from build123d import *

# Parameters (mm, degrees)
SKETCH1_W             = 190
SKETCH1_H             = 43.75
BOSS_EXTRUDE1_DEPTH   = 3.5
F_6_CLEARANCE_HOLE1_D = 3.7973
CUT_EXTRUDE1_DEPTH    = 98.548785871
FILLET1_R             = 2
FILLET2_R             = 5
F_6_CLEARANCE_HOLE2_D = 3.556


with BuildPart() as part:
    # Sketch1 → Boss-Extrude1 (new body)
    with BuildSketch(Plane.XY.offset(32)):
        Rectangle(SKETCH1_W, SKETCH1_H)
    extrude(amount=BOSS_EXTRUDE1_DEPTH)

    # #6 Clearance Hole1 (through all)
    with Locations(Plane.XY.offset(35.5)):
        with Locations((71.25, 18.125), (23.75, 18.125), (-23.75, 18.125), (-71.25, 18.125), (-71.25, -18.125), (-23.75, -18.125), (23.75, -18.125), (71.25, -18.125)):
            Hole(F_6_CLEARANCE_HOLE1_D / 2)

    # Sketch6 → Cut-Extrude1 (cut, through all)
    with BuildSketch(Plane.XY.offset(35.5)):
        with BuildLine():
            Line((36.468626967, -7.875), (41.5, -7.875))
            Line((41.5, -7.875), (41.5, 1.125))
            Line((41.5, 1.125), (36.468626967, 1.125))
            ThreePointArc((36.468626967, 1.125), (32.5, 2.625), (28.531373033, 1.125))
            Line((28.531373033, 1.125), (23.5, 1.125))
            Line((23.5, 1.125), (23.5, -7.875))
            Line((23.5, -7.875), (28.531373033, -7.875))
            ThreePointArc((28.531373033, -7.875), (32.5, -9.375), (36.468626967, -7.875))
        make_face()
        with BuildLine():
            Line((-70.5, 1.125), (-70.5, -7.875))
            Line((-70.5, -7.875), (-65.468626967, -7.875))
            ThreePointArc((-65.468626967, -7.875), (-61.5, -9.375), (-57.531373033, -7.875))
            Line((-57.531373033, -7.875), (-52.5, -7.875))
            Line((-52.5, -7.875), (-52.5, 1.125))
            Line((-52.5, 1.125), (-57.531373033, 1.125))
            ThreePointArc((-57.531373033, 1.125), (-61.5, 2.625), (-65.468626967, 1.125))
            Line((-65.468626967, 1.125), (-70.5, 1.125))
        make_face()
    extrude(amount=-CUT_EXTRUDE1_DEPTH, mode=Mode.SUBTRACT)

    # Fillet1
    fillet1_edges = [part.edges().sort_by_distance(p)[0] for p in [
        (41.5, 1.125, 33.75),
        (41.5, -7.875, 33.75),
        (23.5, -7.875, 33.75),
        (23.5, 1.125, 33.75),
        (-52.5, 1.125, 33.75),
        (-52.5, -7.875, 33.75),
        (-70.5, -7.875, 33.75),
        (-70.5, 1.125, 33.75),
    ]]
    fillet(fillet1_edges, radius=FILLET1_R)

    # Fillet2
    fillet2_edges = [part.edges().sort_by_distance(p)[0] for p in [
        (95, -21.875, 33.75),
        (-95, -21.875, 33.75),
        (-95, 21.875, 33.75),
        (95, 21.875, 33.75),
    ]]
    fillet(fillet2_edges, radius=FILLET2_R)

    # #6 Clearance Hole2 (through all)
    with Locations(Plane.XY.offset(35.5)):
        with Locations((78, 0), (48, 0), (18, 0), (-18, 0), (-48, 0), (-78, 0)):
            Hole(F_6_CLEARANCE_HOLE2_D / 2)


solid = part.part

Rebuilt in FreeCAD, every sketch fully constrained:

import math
import FreeCAD as App
import Part
import Sketcher
Q = App.Units.Quantity


def edges_at(feature, points):
    """Names of the edges that pass closest to the given points."""
    edges = feature.Shape.Edges
    near = lambda p: min(range(len(edges)), key=lambda i: edges[i].distToShape(Part.Vertex(*p))[0])
    return sorted({f"Edge{near(p) + 1}" for p in points})

doc = App.newDocument("Part")
body = doc.addObject("PartDesign::Body", "Body")

# Sketch on XY plane
sketch1 = doc.addObject("Sketcher::SketchObject", "Sketch")
body.addObject(sketch1)
sketch1.AttachmentSupport = (doc.XY_Plane, [""])
sketch1.MapMode = "FlatFace"
sketch1.AttachmentOffset = App.Placement(App.Vector(0, 0, 32), App.Rotation())
sketch1.addGeometry([
    Part.LineSegment(App.Vector(-95, 22, 0), App.Vector(-95, -22, 0)),
    Part.LineSegment(App.Vector(-95, -22, 0), App.Vector(95, -22, 0)),
    Part.LineSegment(App.Vector(95, -22, 0), App.Vector(95, 22, 0)),
    Part.LineSegment(App.Vector(95, 22, 0), App.Vector(-95, 22, 0)),
], False)
sketch1.addConstraint([
    Sketcher.Constraint("Coincident", 0, 2, 1, 1),
    Sketcher.Constraint("Coincident", 1, 2, 2, 1),
    Sketcher.Constraint("Coincident", 2, 2, 3, 1),
    Sketcher.Constraint("Coincident", 3, 2, 0, 1),
    Sketcher.Constraint("Vertical", 0),
    Sketcher.Constraint("Horizontal", 1),
    Sketcher.Constraint("Vertical", 2),
    Sketcher.Constraint("Horizontal", 3),
    Sketcher.Constraint("Symmetric", 0, 2, 2, 2, -1, 1),
    Sketcher.Constraint("DistanceX", 1, 1, 1, 2, Q("190 mm")),
    Sketcher.Constraint("DistanceY", 0, 2, 0, 1, Q("43.75 mm")),
])
pad1 = doc.addObject("PartDesign::Pad", "Pad")
body.addObject(pad1)
pad1.Profile = sketch1
pad1.Length = 3.5

# Sketch on XY plane
sketch2 = doc.addObject("Sketcher::SketchObject", "Sketch001")
body.addObject(sketch2)
sketch2.AttachmentSupport = (doc.XY_Plane, [""])
sketch2.MapMode = "FlatFace"
sketch2.AttachmentOffset = App.Placement(App.Vector(0, 0, 35.5), App.Rotation())
sketch2.addGeometry([
    Part.Circle(App.Vector(71.2, 18.1, 0), App.Vector(0, 0, 1), 1.9),  # 0
    Part.Circle(App.Vector(23.8, 18.1, 0), App.Vector(0, 0, 1), 1.9),  # 1
    Part.Circle(App.Vector(-23.8, 18.1, 0), App.Vector(0, 0, 1), 1.9),  # 2
    Part.Circle(App.Vector(-71.2, 18.1, 0), App.Vector(0, 0, 1), 1.9),  # 3
    Part.Circle(App.Vector(-71.2, -18.1, 0), App.Vector(0, 0, 1), 1.9),  # 4
    Part.Circle(App.Vector(-23.8, -18.1, 0), App.Vector(0, 0, 1), 1.9),  # 5
    Part.Circle(App.Vector(23.8, -18.1, 0), App.Vector(0, 0, 1), 1.9),  # 6
    Part.Circle(App.Vector(71.2, -18.1, 0), App.Vector(0, 0, 1), 1.9),  # 7
], False)
sketch2.addConstraint([
    Sketcher.Constraint("Equal", 0, 1),
    Sketcher.Constraint("Equal", 1, 2),
    Sketcher.Constraint("Equal", 2, 3),
    Sketcher.Constraint("Equal", 3, 4),
    Sketcher.Constraint("Equal", 4, 5),
    Sketcher.Constraint("Equal", 5, 6),
    Sketcher.Constraint("Equal", 6, 7),
    Sketcher.Constraint("Symmetric", 0, 3, 4, 3, -1, 1),
    Sketcher.Constraint("Symmetric", 1, 3, 5, 3, -1, 1),
    Sketcher.Constraint("Symmetric", 2, 3, 6, 3, -1, 1),
    Sketcher.Constraint("Symmetric", 3, 3, 7, 3, -1, 1),
    Sketcher.Constraint("Symmetric", 1, 3, 2, 3, -2),
    Sketcher.Constraint("Symmetric", 0, 3, 3, 3, -2),
    Sketcher.Constraint("Horizontal", 0, 3, 1, 3),
    Sketcher.Constraint("DistanceX", 2, 3, 0, 3, Q("95 mm")),
    Sketcher.Constraint("Diameter", 0, Q("3.7973 mm")),
    Sketcher.Constraint("DistanceX", 1, 3, 0, 3, Q("47.5 mm")),
    Sketcher.Constraint("DistanceY", 4, 3, 3, 3, Q("36.25 mm")),
])
doc.recompute()
hole = doc.addObject("PartDesign::Hole", "Hole")
body.addObject(hole)
hole.Profile = sketch2
hole.ThreadType = "None"
hole.Diameter = 3.7973
hole.DepthType = "ThroughAll"

# Sketch on XY plane
sketch3 = doc.addObject("Sketcher::SketchObject", "Sketch002")
body.addObject(sketch3)
sketch3.AttachmentSupport = (doc.XY_Plane, [""])
sketch3.MapMode = "FlatFace"
sketch3.AttachmentOffset = App.Placement(App.Vector(0, 0, 35.5), App.Rotation())
sketch3.addGeometry([
    Part.LineSegment(App.Vector(36, -8, 0), App.Vector(42, -8, 0)),  # 0
    Part.LineSegment(App.Vector(42, -8, 0), App.Vector(42, 1, 0)),  # 1
    Part.LineSegment(App.Vector(42, 1, 0), App.Vector(36, 1, 0)),  # 2
    Part.ArcOfCircle(Part.Circle(App.Vector(32, -3, 0), App.Vector(0, 0, 1), 6), math.radians(49), math.radians(131)),  # 3
    Part.LineSegment(App.Vector(29, 1, 0), App.Vector(24, 1, 0)),  # 4
    Part.LineSegment(App.Vector(24, 1, 0), App.Vector(24, -8, 0)),  # 5
    Part.LineSegment(App.Vector(24, -8, 0), App.Vector(29, -8, 0)),  # 6
    Part.ArcOfCircle(Part.Circle(App.Vector(32, -3, 0), App.Vector(0, 0, 1), 6), math.radians(-131), math.radians(-49)),  # 7
    Part.LineSegment(App.Vector(-70, 1, 0), App.Vector(-70, -8, 0)),  # 8
    Part.LineSegment(App.Vector(-70, -8, 0), App.Vector(-65, -8, 0)),  # 9
    Part.ArcOfCircle(Part.Circle(App.Vector(-62, -3, 0), App.Vector(0, 0, 1), 6), math.radians(-131), math.radians(-49)),  # 10
    Part.LineSegment(App.Vector(-58, -8, 0), App.Vector(-52, -8, 0)),  # 11
    Part.LineSegment(App.Vector(-52, -8, 0), App.Vector(-52, 1, 0)),  # 12
    Part.LineSegment(App.Vector(-52, 1, 0), App.Vector(-58, 1, 0)),  # 13
    Part.ArcOfCircle(Part.Circle(App.Vector(-62, -3, 0), App.Vector(0, 0, 1), 6), math.radians(49), math.radians(131)),  # 14
    Part.LineSegment(App.Vector(-65, 1, 0), App.Vector(-70, 1, 0)),  # 15
], False)
sketch3.addConstraint([
    Sketcher.Constraint("Coincident", 0, 2, 1, 1),
    Sketcher.Constraint("Coincident", 1, 2, 2, 1),
    Sketcher.Constraint("Coincident", 2, 2, 3, 1),
    Sketcher.Constraint("Coincident", 3, 2, 4, 1),
    Sketcher.Constraint("Coincident", 4, 2, 5, 1),
    Sketcher.Constraint("Coincident", 5, 2, 6, 1),
    Sketcher.Constraint("Coincident", 6, 2, 7, 1),
    Sketcher.Constraint("Coincident", 7, 2, 0, 1),
    Sketcher.Constraint("Coincident", 8, 2, 9, 1),
    Sketcher.Constraint("Coincident", 9, 2, 10, 1),
    Sketcher.Constraint("Coincident", 10, 2, 11, 1),
    Sketcher.Constraint("Coincident", 11, 2, 12, 1),
    Sketcher.Constraint("Coincident", 12, 2, 13, 1),
    Sketcher.Constraint("Coincident", 13, 2, 14, 1),
    Sketcher.Constraint("Coincident", 14, 2, 15, 1),
    Sketcher.Constraint("Coincident", 15, 2, 8, 1),
    Sketcher.Constraint("Horizontal", 0),
    Sketcher.Constraint("Vertical", 1),
    Sketcher.Constraint("Horizontal", 2),
    Sketcher.Constraint("Horizontal", 4),
    Sketcher.Constraint("Vertical", 5),
    Sketcher.Constraint("Horizontal", 6),
    Sketcher.Constraint("Vertical", 8),
    Sketcher.Constraint("Horizontal", 9),
    Sketcher.Constraint("Horizontal", 11),
    Sketcher.Constraint("Vertical", 12),
    Sketcher.Constraint("Horizontal", 13),
    Sketcher.Constraint("Horizontal", 15),
    Sketcher.Constraint("Coincident", 7, 3, 3, 3),
    Sketcher.Constraint("Coincident", 14, 3, 10, 3),
    Sketcher.Constraint("Equal", 3, 7),
    Sketcher.Constraint("Equal", 7, 10),
    Sketcher.Constraint("Equal", 10, 14),
    Sketcher.Constraint("Horizontal", 7, 3, 10, 3),
    Sketcher.Constraint("Horizontal", 2, 2, 3, 2),
    Sketcher.Constraint("Horizontal", 0, 2, 5, 2),
    Sketcher.Constraint("Horizontal", 7, 2, 8, 2),
    Sketcher.Constraint("Horizontal", 9, 2, 10, 2),
    Sketcher.Constraint("Horizontal", 4, 2, 12, 2),
    Sketcher.Constraint("Horizontal", 13, 2, 14, 2),
    Sketcher.Constraint("Vertical", 3, 2, 6, 2),
    Sketcher.Constraint("Equal", 2, 4),
    Sketcher.Constraint("Equal", 6, 9),
    Sketcher.Constraint("Equal", 9, 11),
    Sketcher.Constraint("Radius", 3, Q("6 mm")),
    Sketcher.Constraint("DistanceY", 1, 1, 1, 2, Q("9 mm")),
    Sketcher.Constraint("DistanceX", 10, 3, 3, 3, Q("94 mm")),
    Sketcher.Constraint("DistanceX", 3, 3, 0, 2, Q("9 mm")),
    Sketcher.Constraint("DistanceX", -1, 1, 3, 3, Q("32.5 mm")),
    Sketcher.Constraint("DistanceY", 3, 3, -1, 1, Q("3.375 mm")),
])
pocket1 = doc.addObject("PartDesign::Pocket", "Pocket")
body.addObject(pocket1)
pocket1.Profile = sketch3
pocket1.Type = "ThroughAll"
doc.recompute()

fillet = doc.addObject("PartDesign::Fillet", "Fillet")
body.addObject(fillet)
fillet.Base = (pocket1, edges_at(pocket1, [
    (41.5, 1.125, 33.75),
    (41.5, -7.875, 33.75),
    (23.5, -7.875, 33.75),
    (23.5, 1.125, 33.75),
    (-52.5, 1.125, 33.75),
    (-52.5, -7.875, 33.75),
    (-70.5, -7.875, 33.75),
    (-70.5, 1.125, 33.75),
]))
fillet.Radius = 2
doc.recompute()

fillet2 = doc.addObject("PartDesign::Fillet", "Fillet001")
body.addObject(fillet2)
fillet2.Base = (fillet, edges_at(fillet, [
    (95, -21.875, 33.75),
    (-95, -21.875, 33.75),
    (-95, 21.875, 33.75),
    (95, 21.875, 33.75),
]))
fillet2.Radius = 5

# Sketch on XY plane
sketch4 = doc.addObject("Sketcher::SketchObject", "Sketch003")
body.addObject(sketch4)
sketch4.AttachmentSupport = (doc.XY_Plane, [""])
sketch4.MapMode = "FlatFace"
sketch4.AttachmentOffset = App.Placement(App.Vector(0, 0, 35.5), App.Rotation())
sketch4.addGeometry([
    Part.Circle(App.Vector(78, 0, 0), App.Vector(0, 0, 1), 1.8),  # 0
    Part.Circle(App.Vector(48, 0, 0), App.Vector(0, 0, 1), 1.8),  # 1
    Part.Circle(App.Vector(18, 0, 0), App.Vector(0, 0, 1), 1.8),  # 2
    Part.Circle(App.Vector(-18, 0, 0), App.Vector(0, 0, 1), 1.8),  # 3
    Part.Circle(App.Vector(-48, 0, 0), App.Vector(0, 0, 1), 1.8),  # 4
    Part.Circle(App.Vector(-78, 0, 0), App.Vector(0, 0, 1), 1.8),  # 5
], False)
sketch4.addConstraint([
    Sketcher.Constraint("Equal", 0, 1),
    Sketcher.Constraint("Equal", 1, 2),
    Sketcher.Constraint("Equal", 2, 3),
    Sketcher.Constraint("Equal", 3, 4),
    Sketcher.Constraint("Equal", 4, 5),
    Sketcher.Constraint("Symmetric", 2, 3, 3, 3, -1, 1),
    Sketcher.Constraint("Symmetric", 1, 3, 4, 3, -1, 1),
    Sketcher.Constraint("Symmetric", 0, 3, 5, 3, -1, 1),
    Sketcher.Constraint("PointOnObject", 0, 3, -1),
    Sketcher.Constraint("PointOnObject", 1, 3, -1),
    Sketcher.Constraint("PointOnObject", 2, 3, -1),
    Sketcher.Constraint("Diameter", 0, Q("3.556 mm")),
    Sketcher.Constraint("DistanceX", -1, 1, 0, 3, Q("78 mm")),
    Sketcher.Constraint("DistanceX", -1, 1, 1, 3, Q("48 mm")),
    Sketcher.Constraint("DistanceX", -1, 1, 2, 3, Q("18 mm")),
])
doc.recompute()
hole2 = doc.addObject("PartDesign::Hole", "Hole001")
body.addObject(hole2)
hole2.Profile = sketch4
hole2.ThreadType = "None"
hole2.Diameter = 3.556
hole2.DepthType = "ThroughAll"

doc.recompute()
